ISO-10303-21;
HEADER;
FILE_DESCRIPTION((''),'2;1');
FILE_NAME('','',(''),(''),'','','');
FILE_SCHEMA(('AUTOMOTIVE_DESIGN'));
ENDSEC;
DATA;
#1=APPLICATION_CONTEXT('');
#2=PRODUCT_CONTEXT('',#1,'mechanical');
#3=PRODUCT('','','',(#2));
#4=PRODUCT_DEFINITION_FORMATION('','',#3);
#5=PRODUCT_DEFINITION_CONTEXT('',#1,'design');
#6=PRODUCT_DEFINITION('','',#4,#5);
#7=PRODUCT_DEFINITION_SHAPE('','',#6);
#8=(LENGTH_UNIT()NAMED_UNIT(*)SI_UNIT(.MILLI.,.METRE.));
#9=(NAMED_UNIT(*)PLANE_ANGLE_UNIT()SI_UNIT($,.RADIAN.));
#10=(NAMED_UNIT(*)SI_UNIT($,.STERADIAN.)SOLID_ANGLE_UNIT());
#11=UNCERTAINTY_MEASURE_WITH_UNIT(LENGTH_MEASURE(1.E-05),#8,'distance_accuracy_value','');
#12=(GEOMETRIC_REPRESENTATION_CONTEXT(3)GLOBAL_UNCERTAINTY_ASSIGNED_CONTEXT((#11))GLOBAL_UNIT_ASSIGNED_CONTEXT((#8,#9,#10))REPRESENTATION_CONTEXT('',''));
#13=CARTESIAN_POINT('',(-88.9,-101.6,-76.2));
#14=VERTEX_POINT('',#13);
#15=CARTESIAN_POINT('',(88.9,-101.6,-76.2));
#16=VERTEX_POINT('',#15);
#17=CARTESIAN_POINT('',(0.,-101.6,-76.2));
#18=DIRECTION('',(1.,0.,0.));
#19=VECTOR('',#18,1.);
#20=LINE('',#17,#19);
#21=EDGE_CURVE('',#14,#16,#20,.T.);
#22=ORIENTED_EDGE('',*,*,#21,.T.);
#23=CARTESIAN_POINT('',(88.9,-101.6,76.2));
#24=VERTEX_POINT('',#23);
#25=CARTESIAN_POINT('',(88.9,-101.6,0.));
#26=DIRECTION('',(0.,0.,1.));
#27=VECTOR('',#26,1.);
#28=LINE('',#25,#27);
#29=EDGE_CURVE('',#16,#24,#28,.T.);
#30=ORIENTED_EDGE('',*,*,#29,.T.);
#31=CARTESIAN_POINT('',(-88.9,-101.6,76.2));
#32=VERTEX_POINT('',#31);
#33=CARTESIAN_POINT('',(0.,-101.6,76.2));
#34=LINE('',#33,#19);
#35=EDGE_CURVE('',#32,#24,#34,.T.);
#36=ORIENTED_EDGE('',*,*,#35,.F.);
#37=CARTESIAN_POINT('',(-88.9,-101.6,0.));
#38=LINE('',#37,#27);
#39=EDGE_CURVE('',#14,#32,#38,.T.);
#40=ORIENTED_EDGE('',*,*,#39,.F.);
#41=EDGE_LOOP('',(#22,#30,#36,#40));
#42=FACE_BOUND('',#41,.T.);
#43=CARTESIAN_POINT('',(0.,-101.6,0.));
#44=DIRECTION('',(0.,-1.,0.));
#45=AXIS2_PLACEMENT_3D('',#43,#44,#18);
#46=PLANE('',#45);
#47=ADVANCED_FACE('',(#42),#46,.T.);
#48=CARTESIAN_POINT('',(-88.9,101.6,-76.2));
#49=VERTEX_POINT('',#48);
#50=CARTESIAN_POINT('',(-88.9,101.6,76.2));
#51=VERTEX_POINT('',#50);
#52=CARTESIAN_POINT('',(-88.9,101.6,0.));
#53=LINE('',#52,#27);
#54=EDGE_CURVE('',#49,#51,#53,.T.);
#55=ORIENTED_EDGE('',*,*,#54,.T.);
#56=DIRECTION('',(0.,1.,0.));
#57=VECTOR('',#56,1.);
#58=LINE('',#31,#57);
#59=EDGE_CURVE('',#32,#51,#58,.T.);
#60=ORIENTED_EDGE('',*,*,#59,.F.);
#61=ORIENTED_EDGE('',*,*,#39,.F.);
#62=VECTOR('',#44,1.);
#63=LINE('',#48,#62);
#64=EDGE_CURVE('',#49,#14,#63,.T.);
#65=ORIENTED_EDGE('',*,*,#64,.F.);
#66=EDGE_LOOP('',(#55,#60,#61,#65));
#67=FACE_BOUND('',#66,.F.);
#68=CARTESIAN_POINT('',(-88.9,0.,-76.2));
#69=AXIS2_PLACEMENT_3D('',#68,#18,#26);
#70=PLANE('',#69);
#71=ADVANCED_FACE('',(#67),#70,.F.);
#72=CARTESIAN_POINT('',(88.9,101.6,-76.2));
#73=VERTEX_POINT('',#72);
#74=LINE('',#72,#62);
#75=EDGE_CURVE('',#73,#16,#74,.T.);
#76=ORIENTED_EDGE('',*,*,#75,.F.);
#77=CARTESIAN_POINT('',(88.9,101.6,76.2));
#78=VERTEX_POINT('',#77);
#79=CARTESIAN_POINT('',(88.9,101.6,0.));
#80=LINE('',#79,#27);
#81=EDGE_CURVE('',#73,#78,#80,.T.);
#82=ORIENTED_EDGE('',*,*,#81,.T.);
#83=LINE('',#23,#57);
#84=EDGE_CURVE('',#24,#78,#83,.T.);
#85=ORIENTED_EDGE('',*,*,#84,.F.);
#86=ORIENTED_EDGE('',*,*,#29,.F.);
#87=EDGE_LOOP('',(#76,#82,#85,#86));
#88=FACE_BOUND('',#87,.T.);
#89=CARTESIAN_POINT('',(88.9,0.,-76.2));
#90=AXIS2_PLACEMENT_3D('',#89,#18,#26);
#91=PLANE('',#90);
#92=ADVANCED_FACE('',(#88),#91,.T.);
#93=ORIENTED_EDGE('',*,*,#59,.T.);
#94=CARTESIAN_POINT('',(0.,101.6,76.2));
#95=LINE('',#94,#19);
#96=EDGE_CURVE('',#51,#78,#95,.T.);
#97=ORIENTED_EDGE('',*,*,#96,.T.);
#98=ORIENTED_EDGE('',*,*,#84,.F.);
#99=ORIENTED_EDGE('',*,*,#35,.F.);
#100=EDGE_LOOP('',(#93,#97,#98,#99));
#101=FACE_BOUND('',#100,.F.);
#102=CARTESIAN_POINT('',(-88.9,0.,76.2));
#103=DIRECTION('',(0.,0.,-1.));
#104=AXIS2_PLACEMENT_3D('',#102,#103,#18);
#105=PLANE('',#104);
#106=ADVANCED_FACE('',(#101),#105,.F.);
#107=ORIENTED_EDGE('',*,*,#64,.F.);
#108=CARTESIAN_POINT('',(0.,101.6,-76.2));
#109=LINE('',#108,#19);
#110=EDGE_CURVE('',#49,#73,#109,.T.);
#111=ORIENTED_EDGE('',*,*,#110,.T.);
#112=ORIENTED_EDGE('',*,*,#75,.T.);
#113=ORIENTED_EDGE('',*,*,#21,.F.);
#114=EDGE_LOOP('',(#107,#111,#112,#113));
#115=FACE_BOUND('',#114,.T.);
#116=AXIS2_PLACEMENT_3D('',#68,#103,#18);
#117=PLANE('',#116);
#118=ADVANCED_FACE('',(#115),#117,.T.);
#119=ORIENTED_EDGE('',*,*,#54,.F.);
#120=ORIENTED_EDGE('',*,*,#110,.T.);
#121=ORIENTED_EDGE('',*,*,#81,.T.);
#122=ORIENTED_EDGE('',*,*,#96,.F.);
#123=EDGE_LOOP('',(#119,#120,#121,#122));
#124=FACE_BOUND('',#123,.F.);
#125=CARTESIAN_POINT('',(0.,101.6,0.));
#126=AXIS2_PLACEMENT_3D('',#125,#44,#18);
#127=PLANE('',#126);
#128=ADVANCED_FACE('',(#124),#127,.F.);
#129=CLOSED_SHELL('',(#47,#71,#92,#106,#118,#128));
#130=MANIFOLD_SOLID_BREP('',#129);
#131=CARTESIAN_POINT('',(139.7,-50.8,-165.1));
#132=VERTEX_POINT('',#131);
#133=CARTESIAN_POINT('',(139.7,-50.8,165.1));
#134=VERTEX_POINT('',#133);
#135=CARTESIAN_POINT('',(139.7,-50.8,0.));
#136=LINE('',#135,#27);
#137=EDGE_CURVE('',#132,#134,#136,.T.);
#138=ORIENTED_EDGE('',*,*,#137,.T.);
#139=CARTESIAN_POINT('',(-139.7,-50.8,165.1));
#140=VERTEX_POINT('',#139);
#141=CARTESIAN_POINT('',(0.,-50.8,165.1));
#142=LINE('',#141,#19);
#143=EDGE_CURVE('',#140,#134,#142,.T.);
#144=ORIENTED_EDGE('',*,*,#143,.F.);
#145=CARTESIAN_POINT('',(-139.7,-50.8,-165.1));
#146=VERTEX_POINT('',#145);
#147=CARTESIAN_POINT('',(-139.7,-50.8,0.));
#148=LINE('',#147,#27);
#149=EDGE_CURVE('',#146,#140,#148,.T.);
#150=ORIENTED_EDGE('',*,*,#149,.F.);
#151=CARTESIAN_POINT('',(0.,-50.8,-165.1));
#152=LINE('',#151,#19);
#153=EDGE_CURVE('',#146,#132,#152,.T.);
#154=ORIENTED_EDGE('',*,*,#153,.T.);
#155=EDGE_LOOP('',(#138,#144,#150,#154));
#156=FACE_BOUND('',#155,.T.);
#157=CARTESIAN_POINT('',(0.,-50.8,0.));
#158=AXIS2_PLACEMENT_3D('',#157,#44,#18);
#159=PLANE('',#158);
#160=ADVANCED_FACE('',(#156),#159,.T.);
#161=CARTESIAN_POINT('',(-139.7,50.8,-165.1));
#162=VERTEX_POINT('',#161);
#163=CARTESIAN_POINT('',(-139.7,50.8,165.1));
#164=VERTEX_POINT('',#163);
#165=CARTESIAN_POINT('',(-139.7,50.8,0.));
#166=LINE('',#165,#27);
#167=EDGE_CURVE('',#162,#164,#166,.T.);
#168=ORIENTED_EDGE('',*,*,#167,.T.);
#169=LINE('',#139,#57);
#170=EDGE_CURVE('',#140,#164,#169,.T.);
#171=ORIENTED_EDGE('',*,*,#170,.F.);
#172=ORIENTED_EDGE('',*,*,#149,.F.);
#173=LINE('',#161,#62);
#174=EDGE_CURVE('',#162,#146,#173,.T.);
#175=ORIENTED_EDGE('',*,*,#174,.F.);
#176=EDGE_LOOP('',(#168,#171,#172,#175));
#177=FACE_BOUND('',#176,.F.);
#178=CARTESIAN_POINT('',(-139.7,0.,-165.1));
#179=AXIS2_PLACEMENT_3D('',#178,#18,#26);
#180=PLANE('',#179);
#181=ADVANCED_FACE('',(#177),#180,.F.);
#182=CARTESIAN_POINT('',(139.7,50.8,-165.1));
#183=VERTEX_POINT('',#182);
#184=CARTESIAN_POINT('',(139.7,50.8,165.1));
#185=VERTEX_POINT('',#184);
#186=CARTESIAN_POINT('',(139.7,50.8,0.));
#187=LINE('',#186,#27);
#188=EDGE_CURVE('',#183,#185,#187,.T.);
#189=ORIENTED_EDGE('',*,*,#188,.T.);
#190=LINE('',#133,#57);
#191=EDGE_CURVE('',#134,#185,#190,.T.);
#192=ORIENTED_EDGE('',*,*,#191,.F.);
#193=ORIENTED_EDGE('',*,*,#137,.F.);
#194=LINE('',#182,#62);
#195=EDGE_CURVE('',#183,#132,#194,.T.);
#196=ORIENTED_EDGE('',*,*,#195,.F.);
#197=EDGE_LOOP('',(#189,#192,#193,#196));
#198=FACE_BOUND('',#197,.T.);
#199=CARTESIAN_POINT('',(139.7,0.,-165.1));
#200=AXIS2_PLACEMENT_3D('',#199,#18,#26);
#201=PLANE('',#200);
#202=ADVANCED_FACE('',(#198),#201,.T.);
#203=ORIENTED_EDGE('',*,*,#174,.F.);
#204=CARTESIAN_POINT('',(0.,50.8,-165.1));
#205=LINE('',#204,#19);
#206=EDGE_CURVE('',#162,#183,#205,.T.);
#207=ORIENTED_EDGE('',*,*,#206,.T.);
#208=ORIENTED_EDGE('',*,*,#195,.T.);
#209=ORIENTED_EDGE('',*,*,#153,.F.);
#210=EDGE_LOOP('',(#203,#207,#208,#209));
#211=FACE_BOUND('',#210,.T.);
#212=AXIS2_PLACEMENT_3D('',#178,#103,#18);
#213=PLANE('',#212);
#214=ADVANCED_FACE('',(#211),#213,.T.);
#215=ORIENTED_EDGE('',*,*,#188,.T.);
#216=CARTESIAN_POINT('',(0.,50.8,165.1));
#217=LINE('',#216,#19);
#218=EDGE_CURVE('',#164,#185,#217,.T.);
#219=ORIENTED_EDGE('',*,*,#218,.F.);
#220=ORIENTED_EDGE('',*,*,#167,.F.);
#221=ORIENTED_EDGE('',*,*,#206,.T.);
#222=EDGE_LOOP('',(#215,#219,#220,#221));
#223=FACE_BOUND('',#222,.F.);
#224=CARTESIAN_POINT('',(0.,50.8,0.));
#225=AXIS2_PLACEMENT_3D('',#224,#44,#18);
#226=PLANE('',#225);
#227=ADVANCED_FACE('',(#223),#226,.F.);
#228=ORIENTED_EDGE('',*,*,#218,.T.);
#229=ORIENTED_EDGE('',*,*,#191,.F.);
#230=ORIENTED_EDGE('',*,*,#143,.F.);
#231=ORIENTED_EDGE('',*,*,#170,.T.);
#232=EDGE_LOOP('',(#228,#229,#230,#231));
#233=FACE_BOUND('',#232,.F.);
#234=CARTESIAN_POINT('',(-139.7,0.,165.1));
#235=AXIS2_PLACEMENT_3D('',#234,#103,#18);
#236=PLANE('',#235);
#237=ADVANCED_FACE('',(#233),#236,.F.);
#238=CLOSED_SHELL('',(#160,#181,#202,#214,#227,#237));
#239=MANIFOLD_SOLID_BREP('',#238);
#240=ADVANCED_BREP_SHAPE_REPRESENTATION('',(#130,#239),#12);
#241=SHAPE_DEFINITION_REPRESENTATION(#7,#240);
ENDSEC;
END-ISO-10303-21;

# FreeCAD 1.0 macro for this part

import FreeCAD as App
import Part
import Sketcher

V = App.Vector
Q = App.Units.Quantity


def add_polygon(sketch, points):
    """Adds a closed chain of lines whose ends are joined by coincident constraints."""
    first, n = sketch.GeometryCount, len(points)
    for a, b in zip(points, points[1:] + points[:1]):
        sketch.addGeometry(Part.LineSegment(App.Vector(*a, 0), App.Vector(*b, 0)), False)
    for i in range(n):
        sketch.addConstraint(Sketcher.Constraint("Coincident", first + i, 2, first + (i + 1) % n, 1))

doc = App.newDocument("Part")
body = doc.addObject("PartDesign::Body", "Body")

# Sketch on XZ plane
sketch1 = body.newObject("Sketcher::SketchObject", "Sketch")
sketch1.AttachmentSupport = (doc.getObject("XZ_Plane"), [""])
sketch1.MapMode = "FlatFace"
add_polygon(sketch1, [(-139.7, 165.1), (-139.7, -165.1), (139.7, -165.1), (139.7, 165.1)])  # lines 0-3
sketch1.addConstraint([
    Sketcher.Constraint("Vertical", 0),
    Sketcher.Constraint("Horizontal", 1),
    Sketcher.Constraint("Vertical", 2),
    Sketcher.Constraint("Horizontal", 3),
    Sketcher.Constraint("Symmetric", 0, 2, 2, 2, -1, 1),
    Sketcher.Constraint("DistanceX", 1, 1, 1, 2, Q("11 in")),
    Sketcher.Constraint("DistanceY", 0, 2, 0, 1, Q("13 in")),
])
pad1 = body.newObject("PartDesign::Pad", "Pad")
pad1.Profile = sketch1
pad1.Length = Q("4 in")
pad1.Midplane = True
body2 = doc.addObject("PartDesign::Body", "Body001")

# Sketch on XZ plane
sketch2 = body2.newObject("Sketcher::SketchObject", "Sketch001")
sketch2.AttachmentSupport = (doc.getObject("XZ_Plane001"), [""])
sketch2.MapMode = "FlatFace"
add_polygon(sketch2, [(-88.9, 76.2), (-88.9, -76.2), (88.9, -76.2), (88.9, 76.2)])  # lines 0-3
sketch2.addConstraint([
    Sketcher.Constraint("Vertical", 0),
    Sketcher.Constraint("Horizontal", 1),
    Sketcher.Constraint("Vertical", 2),
    Sketcher.Constraint("Horizontal", 3),
    Sketcher.Constraint("Symmetric", 0, 2, 2, 2, -1, 1),
    Sketcher.Constraint("DistanceX", 1, 1, 1, 2, Q("7 in")),
    Sketcher.Constraint("DistanceY", 0, 2, 0, 1, Q("6 in")),
])
pad2 = body2.newObject("PartDesign::Pad", "Pad001")
pad2.Profile = sketch2
pad2.Length = Q("8 in")
pad2.Midplane = True

doc.recompute()
